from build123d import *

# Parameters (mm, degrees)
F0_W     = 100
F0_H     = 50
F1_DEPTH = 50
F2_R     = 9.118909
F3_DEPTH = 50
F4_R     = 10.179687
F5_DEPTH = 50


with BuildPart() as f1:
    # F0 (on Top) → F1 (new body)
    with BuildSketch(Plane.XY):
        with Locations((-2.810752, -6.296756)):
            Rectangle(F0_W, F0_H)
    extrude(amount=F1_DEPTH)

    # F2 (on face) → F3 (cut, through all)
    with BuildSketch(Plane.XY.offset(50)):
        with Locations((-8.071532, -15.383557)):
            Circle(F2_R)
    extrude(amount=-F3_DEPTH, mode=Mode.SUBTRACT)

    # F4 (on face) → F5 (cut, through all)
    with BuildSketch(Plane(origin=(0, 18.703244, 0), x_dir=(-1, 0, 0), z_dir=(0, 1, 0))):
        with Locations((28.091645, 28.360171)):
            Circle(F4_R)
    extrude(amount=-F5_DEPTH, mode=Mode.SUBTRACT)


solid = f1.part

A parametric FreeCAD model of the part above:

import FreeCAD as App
import Part
import Sketcher


def add_polygon(sketch, points):
    """Adds a closed chain of lines whose ends are joined by coincident constraints."""
    first, n = sketch.GeometryCount, len(points)
    for a, b in zip(points, points[1:] + points[:1]):
        sketch.addGeometry(Part.LineSegment(App.Vector(*a, 0), App.Vector(*b, 0)), False)
    for i in range(n):
        sketch.addConstraint(Sketcher.Constraint("Coincident", first + i, 2, first + (i + 1) % n, 1))

doc = App.newDocument("Part")
body = doc.addObject("PartDesign::Body", "Body")

# Sketch on XY plane
sketch1 = body.newObject("Sketcher::SketchObject", "Sketch")
sketch1.AttachmentSupport = (doc.getObject("XY_Plane"), [""])
sketch1.MapMode = "FlatFace"
add_polygon(sketch1, [(-53, 19), (-53, -31), (47, -31), (47, 19)])  # lines 0-3
sketch1.addConstraint([
    Sketcher.Constraint("Vertical", 0),
    Sketcher.Constraint("Horizontal", 1),
    Sketcher.Constraint("Vertical", 2),
    Sketcher.Constraint("Horizontal", 3),
    Sketcher.Constraint("DistanceX", 1, 1, 1, 2, 100.0),
    Sketcher.Constraint("DistanceY", 0, 2, 0, 1, 50.0),
    Sketcher.Constraint("DistanceX", 0, 2, -1, 1, 52.810752),
    Sketcher.Constraint("DistanceY", 0, 2, -1, 1, 31.296756),
])
pad1 = body.newObject("PartDesign::Pad", "Pad")
pad1.Profile = sketch1
pad1.Length = 50

# Sketch on XY plane
sketch2 = body.newObject("Sketcher::SketchObject", "Sketch001")
sketch2.AttachmentSupport = (doc.getObject("XY_Plane"), [""])
sketch2.MapMode = "FlatFace"
sketch2.AttachmentOffset = App.Placement(App.Vector(0, 0, 50), App.Rotation())
sketch2.addGeometry(Part.Circle(App.Vector(-8, -15, 0), App.Vector(0, 0, 1), 9), False)
sketch2.addConstraint([
    Sketcher.Constraint("Diameter", 0, 18.237818),
    Sketcher.Constraint("DistanceX", 0, 3, -1, 1, 8.071532),
    Sketcher.Constraint("DistanceY", 0, 3, -1, 1, 15.383557),
])
pocket1 = body.newObject("PartDesign::Pocket", "Pocket")
pocket1.Profile = sketch2
pocket1.Type = "ThroughAll"

# Sketch on XZ plane
sketch3 = body.newObject("Sketcher::SketchObject", "Sketch002")
sketch3.AttachmentSupport = (doc.getObject("XZ_Plane"), [""])
sketch3.MapMode = "FlatFace"
sketch3.AttachmentOffset = App.Placement(App.Vector(0, 0, -18.703244), App.Rotation())
sketch3.addGeometry(Part.Circle(App.Vector(-28, 28, 0), App.Vector(0, 0, 1), 10), False)
sketch3.addConstraint([
    Sketcher.Constraint("Diameter", 0, 20.359374),
    Sketcher.Constraint("DistanceY", -1, 1, 0, 3, 28.360171),
    Sketcher.Constraint("DistanceX", 0, 3, -1, 1, 28.091645),
])
pocket2 = body.newObject("PartDesign::Pocket", "Pocket001")
pocket2.Profile = sketch3
pocket2.Type = "ThroughAll"
pocket2.Reversed = True

doc.recompute()
